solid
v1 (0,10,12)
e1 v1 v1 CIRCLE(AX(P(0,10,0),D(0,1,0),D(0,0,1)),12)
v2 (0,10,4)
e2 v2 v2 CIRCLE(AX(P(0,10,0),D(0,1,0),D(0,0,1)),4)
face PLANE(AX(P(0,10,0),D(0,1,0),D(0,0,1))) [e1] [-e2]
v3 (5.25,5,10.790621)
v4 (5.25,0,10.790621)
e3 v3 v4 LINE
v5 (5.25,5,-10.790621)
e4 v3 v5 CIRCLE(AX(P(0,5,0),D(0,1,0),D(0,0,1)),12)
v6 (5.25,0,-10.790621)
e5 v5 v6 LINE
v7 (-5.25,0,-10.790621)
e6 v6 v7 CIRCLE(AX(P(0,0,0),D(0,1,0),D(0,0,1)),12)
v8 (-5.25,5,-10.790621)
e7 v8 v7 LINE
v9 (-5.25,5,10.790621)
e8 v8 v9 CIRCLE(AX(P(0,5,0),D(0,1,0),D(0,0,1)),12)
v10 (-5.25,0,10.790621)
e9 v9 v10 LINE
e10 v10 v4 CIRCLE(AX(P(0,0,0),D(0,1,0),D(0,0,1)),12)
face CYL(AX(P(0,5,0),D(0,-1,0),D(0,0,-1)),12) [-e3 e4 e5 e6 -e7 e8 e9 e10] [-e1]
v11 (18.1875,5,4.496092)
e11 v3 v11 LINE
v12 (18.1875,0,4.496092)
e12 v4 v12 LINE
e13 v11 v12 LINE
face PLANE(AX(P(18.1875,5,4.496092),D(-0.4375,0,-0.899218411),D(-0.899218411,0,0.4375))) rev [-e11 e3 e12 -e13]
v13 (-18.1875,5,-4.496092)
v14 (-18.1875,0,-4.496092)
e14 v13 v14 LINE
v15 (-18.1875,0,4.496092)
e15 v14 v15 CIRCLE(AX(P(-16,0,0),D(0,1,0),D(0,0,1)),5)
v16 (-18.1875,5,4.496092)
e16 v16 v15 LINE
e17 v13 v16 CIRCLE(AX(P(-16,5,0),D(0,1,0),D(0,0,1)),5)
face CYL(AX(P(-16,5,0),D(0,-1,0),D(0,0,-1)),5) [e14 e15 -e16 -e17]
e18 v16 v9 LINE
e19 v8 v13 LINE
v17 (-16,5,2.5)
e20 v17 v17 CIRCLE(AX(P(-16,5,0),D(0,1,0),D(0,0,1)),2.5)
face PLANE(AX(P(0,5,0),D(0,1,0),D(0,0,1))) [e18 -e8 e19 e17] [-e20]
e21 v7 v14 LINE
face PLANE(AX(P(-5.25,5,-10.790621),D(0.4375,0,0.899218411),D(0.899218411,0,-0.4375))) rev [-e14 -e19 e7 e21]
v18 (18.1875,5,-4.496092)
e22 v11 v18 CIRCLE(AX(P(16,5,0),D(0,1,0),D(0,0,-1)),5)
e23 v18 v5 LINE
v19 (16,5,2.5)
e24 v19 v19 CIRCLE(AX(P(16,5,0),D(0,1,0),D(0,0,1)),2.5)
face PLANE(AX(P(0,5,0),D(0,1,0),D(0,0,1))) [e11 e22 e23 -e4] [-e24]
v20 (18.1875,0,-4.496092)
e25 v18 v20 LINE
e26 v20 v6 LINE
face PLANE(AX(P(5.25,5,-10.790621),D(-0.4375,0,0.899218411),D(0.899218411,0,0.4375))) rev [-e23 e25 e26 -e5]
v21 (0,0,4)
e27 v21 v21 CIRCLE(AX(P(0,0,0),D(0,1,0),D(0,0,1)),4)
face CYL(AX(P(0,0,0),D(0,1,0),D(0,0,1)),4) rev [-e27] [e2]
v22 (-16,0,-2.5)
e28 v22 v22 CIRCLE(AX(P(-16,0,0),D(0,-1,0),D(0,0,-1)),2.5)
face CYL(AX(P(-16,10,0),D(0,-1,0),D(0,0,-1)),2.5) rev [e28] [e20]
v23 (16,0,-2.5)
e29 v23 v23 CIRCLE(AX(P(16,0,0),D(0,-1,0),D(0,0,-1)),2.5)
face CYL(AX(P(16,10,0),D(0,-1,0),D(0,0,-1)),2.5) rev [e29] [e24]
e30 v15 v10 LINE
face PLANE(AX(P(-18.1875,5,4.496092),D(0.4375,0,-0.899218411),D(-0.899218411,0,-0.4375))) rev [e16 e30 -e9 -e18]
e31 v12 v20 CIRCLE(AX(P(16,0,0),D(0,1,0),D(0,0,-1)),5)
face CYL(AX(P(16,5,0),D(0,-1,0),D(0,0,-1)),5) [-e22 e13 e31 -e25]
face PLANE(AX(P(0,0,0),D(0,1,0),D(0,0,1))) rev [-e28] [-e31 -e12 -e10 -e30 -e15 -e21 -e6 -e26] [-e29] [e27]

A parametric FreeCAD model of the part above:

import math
import FreeCAD as App
import Part
import Sketcher

V = App.Vector
Q = App.Units.Quantity

doc = App.newDocument("Part")
body = doc.addObject("PartDesign::Body", "Body")

# Sketch on XZ plane
sketch1 = body.newObject("Sketcher::SketchObject", "Sketch")
sketch1.AttachmentSupport = (doc.getObject("XZ_Plane"), [""])
sketch1.MapMode = "FlatFace"
sketch1.addGeometry([
    Part.LineSegment(V(-5, -11, 0), V(-18, -4, 0)),  # 0
    Part.ArcOfCircle(Part.Circle(V(-16, 0, 0), V(0, 0, 1), 5), math.radians(116), math.radians(244)),  # 1
    Part.LineSegment(V(-18, 4, 0), V(-5, 11, 0)),  # 2
    Part.ArcOfCircle(Part.Circle(V(0, 0, 0), V(0, 0, 1), 12), math.radians(64), math.radians(116)),  # 3
    Part.LineSegment(V(5, 11, 0), V(18, 4, 0)),  # 4
    Part.ArcOfCircle(Part.Circle(V(16, 0, 0), V(0, 0, 1), 5), math.radians(-64), math.radians(64)),  # 5
    Part.LineSegment(V(18, -4, 0), V(5, -11, 0)),  # 6
    Part.ArcOfCircle(Part.Circle(V(0, 0, 0), V(0, 0, 1), 12), math.radians(-116), math.radians(-64)),  # 7
], False)
sketch1.addConstraint([
    Sketcher.Constraint("Tangent", 0, 2, 1, 2),
    Sketcher.Constraint("Tangent", 1, 1, 2, 1),
    Sketcher.Constraint("Tangent", 2, 2, 3, 2),
    Sketcher.Constraint("Tangent", 3, 1, 4, 1),
    Sketcher.Constraint("Tangent", 4, 2, 5, 2),
    Sketcher.Constraint("Tangent", 5, 1, 6, 1),
    Sketcher.Constraint("Tangent", 6, 2, 7, 2),
    Sketcher.Constraint("Tangent", 7, 1, 0, 1),
    Sketcher.Constraint("Coincident", 3, 3, -1, 1),
    Sketcher.Constraint("Coincident", 7, 3, -1, 1),
    Sketcher.Constraint("Equal", 1, 5),
    Sketcher.Constraint("Equal", 3, 7),
    Sketcher.Constraint("Symmetric", 1, 3, 5, 3, -1, 1),
    Sketcher.Constraint("PointOnObject", 1, 3, -1),
    Sketcher.Constraint("Radius", 1, Q("5 mm")),
    Sketcher.Constraint("Radius", 3, Q("12 mm")),
    Sketcher.Constraint("DistanceX", 1, 3, -1, 1, Q("16 mm")),
])
pad1 = body.newObject("PartDesign::Pad", "Pad")
pad1.Profile = sketch1
pad1.Length = 5
pad1.Reversed = True

# Sketch on XZ plane
sketch2 = body.newObject("Sketcher::SketchObject", "Sketch001")
sketch2.AttachmentSupport = (doc.getObject("XZ_Plane"), [""])
sketch2.MapMode = "FlatFace"
sketch2.AttachmentOffset = App.Placement(V(0, 0, -5), App.Rotation())
sketch2.addGeometry(Part.Circle(V(0, 0, 0), V(0, 0, 1), 12), False)
sketch2.addConstraint([
    Sketcher.Constraint("Coincident", 0, 3, -1, 1),
    Sketcher.Constraint("Diameter", 0, Q("24 mm")),
])
pad2 = body.newObject("PartDesign::Pad", "Pad001")
pad2.Profile = sketch2
pad2.Length = 5
pad2.Reversed = True

# Sketch on XZ plane
sketch3 = body.newObject("Sketcher::SketchObject", "Sketch002")
sketch3.AttachmentSupport = (doc.getObject("XZ_Plane"), [""])
sketch3.MapMode = "FlatFace"
sketch3.AttachmentOffset = App.Placement(V(0, 0, -10), App.Rotation())
sketch3.addGeometry(Part.Circle(V(0, 0, 0), V(0, 0, 1), 4), False)
sketch3.addConstraint([
    Sketcher.Constraint("Coincident", 0, 3, -1, 1),
    Sketcher.Constraint("Diameter", 0, Q("8 mm")),
])
pocket1 = body.newObject("PartDesign::Pocket", "Pocket")
pocket1.Profile = sketch3
pocket1.Type = "ThroughAll"
pocket1.Reversed = True

# Sketch on XZ plane
sketch4 = body.newObject("Sketcher::SketchObject", "Sketch003")
sketch4.AttachmentSupport = (doc.getObject("XZ_Plane"), [""])
sketch4.MapMode = "FlatFace"
sketch4.addGeometry([
    Part.Circle(V(-16, 0, 0), V(0, 0, 1), 2.5),
    Part.Circle(V(16, 0, 0), V(0, 0, 1), 2.5),
], False)
sketch4.addConstraint([
    Sketcher.Constraint("Equal", 0, 1),
    Sketcher.Constraint("Symmetric", 0, 3, 1, 3, -1, 1),
    Sketcher.Constraint("PointOnObject", 0, 3, -1),
    Sketcher.Constraint("Diameter", 0, Q("5 mm")),
    Sketcher.Constraint("DistanceX", 0, 3, -1, 1, Q("16 mm")),
])
pocket2 = body.newObject("PartDesign::Pocket", "Pocket001")
pocket2.Profile = sketch4
pocket2.Type = "ThroughAll"

doc.recompute()
